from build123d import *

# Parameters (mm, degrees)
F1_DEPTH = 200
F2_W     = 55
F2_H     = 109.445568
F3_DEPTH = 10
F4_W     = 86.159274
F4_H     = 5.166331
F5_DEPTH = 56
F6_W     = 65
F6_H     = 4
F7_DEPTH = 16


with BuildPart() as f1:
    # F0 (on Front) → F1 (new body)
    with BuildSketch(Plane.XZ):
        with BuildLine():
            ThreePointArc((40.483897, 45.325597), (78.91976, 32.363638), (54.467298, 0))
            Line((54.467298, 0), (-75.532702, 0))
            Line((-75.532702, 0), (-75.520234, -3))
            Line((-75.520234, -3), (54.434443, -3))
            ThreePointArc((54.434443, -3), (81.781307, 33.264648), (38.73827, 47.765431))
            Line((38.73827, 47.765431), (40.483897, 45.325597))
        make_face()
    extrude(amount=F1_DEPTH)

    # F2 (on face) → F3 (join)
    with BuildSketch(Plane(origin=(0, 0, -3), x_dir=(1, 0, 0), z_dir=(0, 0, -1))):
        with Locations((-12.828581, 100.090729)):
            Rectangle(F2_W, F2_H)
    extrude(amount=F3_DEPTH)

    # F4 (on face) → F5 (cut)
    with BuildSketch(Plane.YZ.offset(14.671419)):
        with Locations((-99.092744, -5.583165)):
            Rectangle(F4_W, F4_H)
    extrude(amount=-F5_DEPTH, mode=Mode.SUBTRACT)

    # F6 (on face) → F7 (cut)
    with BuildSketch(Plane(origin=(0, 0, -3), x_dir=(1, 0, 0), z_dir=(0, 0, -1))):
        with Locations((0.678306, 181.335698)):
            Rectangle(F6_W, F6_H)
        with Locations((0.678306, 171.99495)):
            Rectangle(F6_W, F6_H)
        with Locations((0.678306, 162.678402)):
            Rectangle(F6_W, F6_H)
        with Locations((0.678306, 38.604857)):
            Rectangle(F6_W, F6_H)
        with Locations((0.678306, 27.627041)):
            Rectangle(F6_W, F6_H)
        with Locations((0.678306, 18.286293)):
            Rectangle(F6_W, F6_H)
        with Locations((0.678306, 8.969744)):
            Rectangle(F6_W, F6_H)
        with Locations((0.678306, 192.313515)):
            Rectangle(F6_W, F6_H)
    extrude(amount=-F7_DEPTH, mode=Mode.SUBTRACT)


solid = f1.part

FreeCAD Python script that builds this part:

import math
import FreeCAD as App
import Part
import Sketcher
Q = App.Units.Quantity


def add_polygon(sketch, points):
    """Adds a closed chain of lines whose ends are joined by coincident constraints."""
    first, n = sketch.GeometryCount, len(points)
    for a, b in zip(points, points[1:] + points[:1]):
        sketch.addGeometry(Part.LineSegment(App.Vector(*a, 0), App.Vector(*b, 0)), False)
    for i in range(n):
        sketch.addConstraint(Sketcher.Constraint("Coincident", first + i, 2, first + (i + 1) % n, 1))

doc = App.newDocument("Part")
body = doc.addObject("PartDesign::Body", "Body")

sketch1 = body.newObject("Sketcher::SketchObject", "Sketch")
sketch1.AttachmentSupport = (doc.getObject("XZ_Plane"), [""])
sketch1.MapMode = "FlatFace"
sketch1.addGeometry(Part.ArcOfCircle(Part.Circle(App.Vector(55, 25, 0), App.Vector(0, 0, 1), 25), math.radians(-91), math.radians(126)), False)
sketch1.addGeometry(Part.LineSegment(App.Vector(54.5, 0, 0), App.Vector(-75.5, 0, 0)), False)
sketch1.addGeometry(Part.LineSegment(App.Vector(-75.5, 0, 0), App.Vector(-75.5, -3, 0)), False)
sketch1.addGeometry(Part.LineSegment(App.Vector(-75.5, -3, 0), App.Vector(54.4, -3, 0)), False)
sketch1.addGeometry(Part.ArcOfCircle(Part.Circle(App.Vector(55, 25, 0), App.Vector(0, 0, 1), 28), math.radians(-91), math.radians(126)), False)
sketch1.addGeometry(Part.LineSegment(App.Vector(38.7, 47.8, 0), App.Vector(40.5, 45.3, 0)), False)
sketch1.addConstraint(Sketcher.Constraint("Coincident", 0, 1, 1, 1))
sketch1.addConstraint(Sketcher.Constraint("Coincident", 1, 2, 2, 1))
sketch1.addConstraint(Sketcher.Constraint("Coincident", 2, 2, 3, 1))
sketch1.addConstraint(Sketcher.Constraint("Coincident", 3, 2, 4, 1))
sketch1.addConstraint(Sketcher.Constraint("Coincident", 4, 2, 5, 1))
sketch1.addConstraint(Sketcher.Constraint("Coincident", 5, 2, 0, 2))
sketch1.addConstraint(Sketcher.Constraint("Horizontal", 1))
sketch1.addConstraint(Sketcher.Constraint("Horizontal", 3))
sketch1.addConstraint(Sketcher.Constraint("Coincident", 4, 3, 0, 3))
sketch1.addConstraint(Sketcher.Constraint("PointOnObject", 0, 1, -1))
sketch1.addConstraint(Sketcher.Constraint("Radius", 0, Q("25 mm")))
sketch1.addConstraint(Sketcher.Constraint("Radius", 4, Q("28 mm")))
sketch1.addConstraint(Sketcher.Constraint("DistanceX", 1, 2, 1, 1, Q("130 mm")))
sketch1.addConstraint(Sketcher.Constraint("DistanceY", 2, 2, -1, 1, Q("3 mm")))
sketch1.addConstraint(Sketcher.Constraint("DistanceX", -1, 1, 0, 1, Q("54.467298 mm")))
sketch1.addConstraint(Sketcher.Constraint("DistanceX", 5, 2, 0, 1, Q("13.983401 mm")))
sketch1.addConstraint(Sketcher.Constraint("DistanceX", 3, 1, 3, 2, Q("129.954677 mm")))
sketch1.addConstraint(Sketcher.Constraint("DistanceY", -1, 1, 0, 3, Q("24.993649 mm")))
sketch1.addConstraint(Sketcher.Constraint("DistanceX", -1, 1, 4, 2, Q("38.73827 mm")))
pad1 = body.newObject("PartDesign::Pad", "Pad")
pad1.Profile = sketch1
pad1.Length = 200

sketch2 = body.newObject("Sketcher::SketchObject", "Sketch001")
sketch2.AttachmentSupport = (doc.getObject("XY_Plane"), [""])
sketch2.MapMode = "FlatFace"
sketch2.AttachmentOffset = App.Placement(App.Vector(0, 0, -3), App.Rotation())
add_polygon(sketch2, [(-40, -155), (-40, -45), (15, -45), (15, -155)])
sketch2.addConstraint(Sketcher.Constraint("Vertical", 0))
sketch2.addConstraint(Sketcher.Constraint("Horizontal", 1))
sketch2.addConstraint(Sketcher.Constraint("Vertical", 2))
sketch2.addConstraint(Sketcher.Constraint("Horizontal", 3))
sketch2.addConstraint(Sketcher.Constraint("DistanceX", 1, 1, 1, 2, Q("55 mm")))
sketch2.addConstraint(Sketcher.Constraint("DistanceY", 0, 1, 0, 2, Q("109.445568 mm")))
sketch2.addConstraint(Sketcher.Constraint("DistanceX", 0, 2, -1, 1, Q("40.328581 mm")))
sketch2.addConstraint(Sketcher.Constraint("DistanceY", 0, 2, -1, 1, Q("45.367945 mm")))
pad2 = body.newObject("PartDesign::Pad", "Pad001")
pad2.Profile = sketch2
pad2.Length = 10
pad2.Reversed = True

sketch3 = body.newObject("Sketcher::SketchObject", "Sketch002")
sketch3.AttachmentSupport = (doc.getObject("YZ_Plane"), [""])
sketch3.MapMode = "FlatFace"
sketch3.AttachmentOffset = App.Placement(App.Vector(0, 0, 14.671419), App.Rotation())
add_polygon(sketch3, [(-142, -3), (-142, -8), (-56, -8), (-56, -3)])
sketch3.addConstraint(Sketcher.Constraint("Vertical", 0))
sketch3.addConstraint(Sketcher.Constraint("Horizontal", 1))
sketch3.addConstraint(Sketcher.Constraint("Vertical", 2))
sketch3.addConstraint(Sketcher.Constraint("Horizontal", 3))
sketch3.addConstraint(Sketcher.Constraint("DistanceY", 2, 2, -1, 1, Q("2.999999 mm")))
sketch3.addConstraint(Sketcher.Constraint("DistanceY", 0, 2, 0, 1, Q("5.166331 mm")))
sketch3.addConstraint(Sketcher.Constraint("DistanceX", 1, 1, 1, 2, Q("86.159274 mm")))
sketch3.addConstraint(Sketcher.Constraint("DistanceX", 0, 2, -1, 1, Q("142.172381 mm")))
pocket1 = body.newObject("PartDesign::Pocket", "Pocket")
pocket1.Profile = sketch3
pocket1.Length = 56

sketch4 = body.newObject("Sketcher::SketchObject", "Sketch003")
sketch4.AttachmentSupport = (doc.getObject("XY_Plane"), [""])
sketch4.MapMode = "FlatFace"
sketch4.AttachmentOffset = App.Placement(App.Vector(0, 0, -3), App.Rotation())
add_polygon(sketch4, [(-31.8, -183.3), (-31.8, -179.3), (33.2, -179.3), (33.2, -183.3)])
add_polygon(sketch4, [(-31.8, -174), (-31.8, -170), (33.2, -170), (33.2, -174)])
add_polygon(sketch4, [(-31.8, -164.7), (-31.8, -160.7), (33.2, -160.7), (33.2, -164.7)])
add_polygon(sketch4, [(-31.8, -40.6), (-31.8, -36.6), (33.2, -36.6), (33.2, -40.6)])
add_polygon(sketch4, [(-31.8, -29.6), (-31.8, -25.6), (33.2, -25.6), (33.2, -29.6)])
add_polygon(sketch4, [(-31.8, -20.3), (-31.8, -16.3), (33.2, -16.3), (33.2, -20.3)])
add_polygon(sketch4, [(-31.8, -11), (-31.8, -7), (33.2, -7), (33.2, -11)])
add_polygon(sketch4, [(-31.8, -194.3), (-31.8, -190.3), (33.2, -190.3), (33.2, -194.3)])
sketch4.addConstraint(Sketcher.Constraint("Vertical", 0))
sketch4.addConstraint(Sketcher.Constraint("Horizontal", 1))
sketch4.addConstraint(Sketcher.Constraint("Vertical", 2))
sketch4.addConstraint(Sketcher.Constraint("Horizontal", 3))
sketch4.addConstraint(Sketcher.Constraint("Vertical", 4))
sketch4.addConstraint(Sketcher.Constraint("Horizontal", 5))
sketch4.addConstraint(Sketcher.Constraint("Vertical", 6))
sketch4.addConstraint(Sketcher.Constraint("Horizontal", 7))
sketch4.addConstraint(Sketcher.Constraint("Vertical", 8))
sketch4.addConstraint(Sketcher.Constraint("Horizontal", 9))
sketch4.addConstraint(Sketcher.Constraint("Vertical", 10))
sketch4.addConstraint(Sketcher.Constraint("Horizontal", 11))
sketch4.addConstraint(Sketcher.Constraint("Vertical", 12))
sketch4.addConstraint(Sketcher.Constraint("Horizontal", 13))
sketch4.addConstraint(Sketcher.Constraint("Vertical", 14))
sketch4.addConstraint(Sketcher.Constraint("Horizontal", 15))
sketch4.addConstraint(Sketcher.Constraint("Vertical", 16))
sketch4.addConstraint(Sketcher.Constraint("Horizontal", 17))
sketch4.addConstraint(Sketcher.Constraint("Vertical", 18))
sketch4.addConstraint(Sketcher.Constraint("Horizontal", 19))
sketch4.addConstraint(Sketcher.Constraint("Vertical", 20))
sketch4.addConstraint(Sketcher.Constraint("Horizontal", 21))
sketch4.addConstraint(Sketcher.Constraint("Vertical", 22))
sketch4.addConstraint(Sketcher.Constraint("Horizontal", 23))
sketch4.addConstraint(Sketcher.Constraint("Vertical", 24))
sketch4.addConstraint(Sketcher.Constraint("Horizontal", 25))
sketch4.addConstraint(Sketcher.Constraint("Vertical", 26))
sketch4.addConstraint(Sketcher.Constraint("Horizontal", 27))
sketch4.addConstraint(Sketcher.Constraint("Vertical", 28))
sketch4.addConstraint(Sketcher.Constraint("Horizontal", 29))
sketch4.addConstraint(Sketcher.Constraint("Vertical", 30))
sketch4.addConstraint(Sketcher.Constraint("Horizontal", 31))
sketch4.addConstraint(Sketcher.Constraint("Vertical", 3, 2, 4, 2))
sketch4.addConstraint(Sketcher.Constraint("Vertical", 2, 2, 5, 2))
sketch4.addConstraint(Sketcher.Constraint("Vertical", 7, 2, 8, 2))
sketch4.addConstraint(Sketcher.Constraint("Vertical", 6, 2, 9, 2))
sketch4.addConstraint(Sketcher.Constraint("Vertical", 11, 2, 12, 2))
sketch4.addConstraint(Sketcher.Constraint("Vertical", 10, 2, 13, 2))
sketch4.addConstraint(Sketcher.Constraint("Vertical", 15, 2, 16, 2))
sketch4.addConstraint(Sketcher.Constraint("Vertical", 14, 2, 17, 2))
sketch4.addConstraint(Sketcher.Constraint("Vertical", 19, 2, 20, 2))
sketch4.addConstraint(Sketcher.Constraint("Vertical", 18, 2, 21, 2))
sketch4.addConstraint(Sketcher.Constraint("Vertical", 23, 2, 24, 2))
sketch4.addConstraint(Sketcher.Constraint("Vertical", 22, 2, 25, 2))
sketch4.addConstraint(Sketcher.Constraint("Vertical", 27, 2, 28, 2))
sketch4.addConstraint(Sketcher.Constraint("Vertical", 26, 2, 29, 2))
sketch4.addConstraint(Sketcher.Constraint("Equal", 2, 4))
sketch4.addConstraint(Sketcher.Constraint("Equal", 6, 8))
sketch4.addConstraint(Sketcher.Constraint("Equal", 10, 12))
sketch4.addConstraint(Sketcher.Constraint("Equal", 14, 16))
sketch4.addConstraint(Sketcher.Constraint("Equal", 18, 20))
sketch4.addConstraint(Sketcher.Constraint("Equal", 22, 24))
sketch4.addConstraint(Sketcher.Constraint("Equal", 26, 28))
sketch4.addConstraint(Sketcher.Constraint("DistanceX", 1, 1, 1, 2, Q("65 mm")))
sketch4.addConstraint(Sketcher.Constraint("DistanceY", 0, 1, 0, 2, Q("4 mm")))
sketch4.addConstraint(Sketcher.Constraint("DistanceY", 0, 2, -1, 1, Q("179.335698 mm")))
sketch4.addConstraint(Sketcher.Constraint("DistanceY", 8, 2, -1, 1, Q("160.678402 mm")))
sketch4.addConstraint(Sketcher.Constraint("DistanceY", 4, 2, -1, 1, Q("169.99495 mm")))
sketch4.addConstraint(Sketcher.Constraint("DistanceY", 16, 2, -1, 1, Q("25.627041 mm")))
sketch4.addConstraint(Sketcher.Constraint("DistanceY", 20, 2, 24, 2, Q("9.316549 mm")))
sketch4.addConstraint(Sketcher.Constraint("DistanceX", 0, 2, -1, 1, Q("31.821694 mm")))
sketch4.addConstraint(Sketcher.Constraint("DistanceY", 12, 2, -1, 1, Q("36.604857 mm")))
sketch4.addConstraint(Sketcher.Constraint("DistanceY", 20, 2, -1, 1, Q("16.286293 mm")))
sketch4.addConstraint(Sketcher.Constraint("DistanceY", 28, 2, -1, 1, Q("190.313515 mm")))
pocket2 = body.newObject("PartDesign::Pocket", "Pocket001")
pocket2.Profile = sketch4
pocket2.Length = 16
pocket2.Reversed = True

doc.recompute()
